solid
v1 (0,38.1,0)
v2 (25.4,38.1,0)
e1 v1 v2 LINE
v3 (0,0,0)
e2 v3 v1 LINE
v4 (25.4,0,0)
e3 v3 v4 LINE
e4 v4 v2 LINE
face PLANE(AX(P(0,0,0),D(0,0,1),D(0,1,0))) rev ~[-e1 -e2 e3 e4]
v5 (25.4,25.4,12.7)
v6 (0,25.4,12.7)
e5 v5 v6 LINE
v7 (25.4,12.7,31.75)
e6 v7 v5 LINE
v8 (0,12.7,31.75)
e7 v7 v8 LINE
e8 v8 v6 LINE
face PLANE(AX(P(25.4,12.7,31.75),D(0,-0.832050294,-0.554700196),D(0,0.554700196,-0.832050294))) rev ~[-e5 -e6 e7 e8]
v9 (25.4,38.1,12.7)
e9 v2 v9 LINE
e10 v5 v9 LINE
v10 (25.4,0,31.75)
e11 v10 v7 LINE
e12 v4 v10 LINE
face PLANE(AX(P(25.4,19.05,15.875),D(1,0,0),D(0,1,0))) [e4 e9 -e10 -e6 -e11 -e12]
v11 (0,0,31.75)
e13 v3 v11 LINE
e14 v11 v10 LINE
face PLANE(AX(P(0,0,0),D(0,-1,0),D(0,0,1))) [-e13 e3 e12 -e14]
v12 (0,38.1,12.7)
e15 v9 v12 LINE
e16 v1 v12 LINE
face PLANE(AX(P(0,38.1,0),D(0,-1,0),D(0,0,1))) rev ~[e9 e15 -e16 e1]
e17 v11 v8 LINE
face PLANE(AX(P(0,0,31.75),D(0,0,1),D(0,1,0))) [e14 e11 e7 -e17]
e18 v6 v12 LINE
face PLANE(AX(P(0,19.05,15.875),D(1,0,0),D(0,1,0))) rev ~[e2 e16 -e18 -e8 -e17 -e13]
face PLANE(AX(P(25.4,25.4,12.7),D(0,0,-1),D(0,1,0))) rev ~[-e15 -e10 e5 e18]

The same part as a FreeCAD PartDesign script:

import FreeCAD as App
import Part
import Sketcher
Q = App.Units.Quantity

doc = App.newDocument("Part")
body = doc.addObject("PartDesign::Body", "Body")

# Sketch on YZ plane
sketch1 = doc.addObject("Sketcher::SketchObject", "Sketch")
body.addObject(sketch1)
sketch1.AttachmentSupport = (doc.YZ_Plane, [""])
sketch1.MapMode = "FlatFace"
sketch1.addGeometry([
    Part.LineSegment(App.Vector(0, 32, 0), App.Vector(0, 0, 0)),
    Part.LineSegment(App.Vector(0, 0, 0), App.Vector(38, 0, 0)),
    Part.LineSegment(App.Vector(38, 0, 0), App.Vector(38, 32, 0)),
    Part.LineSegment(App.Vector(38, 32, 0), App.Vector(0, 32, 0)),
], False)
sketch1.addConstraint([
    Sketcher.Constraint("Coincident", 0, 2, 1, 1),
    Sketcher.Constraint("Coincident", 1, 2, 2, 1),
    Sketcher.Constraint("Coincident", 2, 2, 3, 1),
    Sketcher.Constraint("Coincident", 3, 2, 0, 1),
    Sketcher.Constraint("Vertical", 0),
    Sketcher.Constraint("Horizontal", 1),
    Sketcher.Constraint("Vertical", 2),
    Sketcher.Constraint("Horizontal", 3),
    Sketcher.Constraint("Coincident", 0, 2, -1, 1),
    Sketcher.Constraint("DistanceX", 1, 1, 1, 2, Q("1.5 in")),
    Sketcher.Constraint("DistanceY", 0, 2, 0, 1, Q("1.25 in")),
])
pad1 = doc.addObject("PartDesign::Pad", "Pad")
body.addObject(pad1)
pad1.Profile = sketch1
pad1.Length = Q("1 in")

# Sketch on YZ plane
sketch2 = doc.addObject("Sketcher::SketchObject", "Sketch001")
body.addObject(sketch2)
sketch2.AttachmentSupport = (doc.YZ_Plane, [""])
sketch2.MapMode = "FlatFace"
sketch2.AttachmentOffset = App.Placement(App.Vector(0, 0, 1 * 25.4), App.Rotation())
sketch2.addGeometry([
    Part.LineSegment(App.Vector(25, 13, 0), App.Vector(38, 13, 0)),
    Part.LineSegment(App.Vector(38, 13, 0), App.Vector(38, 32, 0)),
    Part.LineSegment(App.Vector(38, 32, 0), App.Vector(13, 32, 0)),
    Part.LineSegment(App.Vector(13, 32, 0), App.Vector(25, 13, 0)),
], False)
sketch2.addConstraint([
    Sketcher.Constraint("Coincident", 0, 2, 1, 1),
    Sketcher.Constraint("Coincident", 1, 2, 2, 1),
    Sketcher.Constraint("Coincident", 2, 2, 3, 1),
    Sketcher.Constraint("Coincident", 3, 2, 0, 1),
    Sketcher.Constraint("Horizontal", 0),
    Sketcher.Constraint("Vertical", 1),
    Sketcher.Constraint("Horizontal", 2),
    Sketcher.Constraint("DistanceX", 2, 2, 2, 1, Q("1 in")),
    Sketcher.Constraint("DistanceX", 0, 1, 0, 2, Q("0.5 in")),
    Sketcher.Constraint("DistanceX", -1, 1, 3, 2, Q("1 in")),
    Sketcher.Constraint("DistanceY", 1, 1, 1, 2, Q("0.75 in")),
    Sketcher.Constraint("DistanceY", -1, 1, 0, 2, Q("0.5 in")),
])
pocket1 = doc.addObject("PartDesign::Pocket", "Pocket")
body.addObject(pocket1)
pocket1.Profile = sketch2
pocket1.Type = "ThroughAll"

doc.recompute()
